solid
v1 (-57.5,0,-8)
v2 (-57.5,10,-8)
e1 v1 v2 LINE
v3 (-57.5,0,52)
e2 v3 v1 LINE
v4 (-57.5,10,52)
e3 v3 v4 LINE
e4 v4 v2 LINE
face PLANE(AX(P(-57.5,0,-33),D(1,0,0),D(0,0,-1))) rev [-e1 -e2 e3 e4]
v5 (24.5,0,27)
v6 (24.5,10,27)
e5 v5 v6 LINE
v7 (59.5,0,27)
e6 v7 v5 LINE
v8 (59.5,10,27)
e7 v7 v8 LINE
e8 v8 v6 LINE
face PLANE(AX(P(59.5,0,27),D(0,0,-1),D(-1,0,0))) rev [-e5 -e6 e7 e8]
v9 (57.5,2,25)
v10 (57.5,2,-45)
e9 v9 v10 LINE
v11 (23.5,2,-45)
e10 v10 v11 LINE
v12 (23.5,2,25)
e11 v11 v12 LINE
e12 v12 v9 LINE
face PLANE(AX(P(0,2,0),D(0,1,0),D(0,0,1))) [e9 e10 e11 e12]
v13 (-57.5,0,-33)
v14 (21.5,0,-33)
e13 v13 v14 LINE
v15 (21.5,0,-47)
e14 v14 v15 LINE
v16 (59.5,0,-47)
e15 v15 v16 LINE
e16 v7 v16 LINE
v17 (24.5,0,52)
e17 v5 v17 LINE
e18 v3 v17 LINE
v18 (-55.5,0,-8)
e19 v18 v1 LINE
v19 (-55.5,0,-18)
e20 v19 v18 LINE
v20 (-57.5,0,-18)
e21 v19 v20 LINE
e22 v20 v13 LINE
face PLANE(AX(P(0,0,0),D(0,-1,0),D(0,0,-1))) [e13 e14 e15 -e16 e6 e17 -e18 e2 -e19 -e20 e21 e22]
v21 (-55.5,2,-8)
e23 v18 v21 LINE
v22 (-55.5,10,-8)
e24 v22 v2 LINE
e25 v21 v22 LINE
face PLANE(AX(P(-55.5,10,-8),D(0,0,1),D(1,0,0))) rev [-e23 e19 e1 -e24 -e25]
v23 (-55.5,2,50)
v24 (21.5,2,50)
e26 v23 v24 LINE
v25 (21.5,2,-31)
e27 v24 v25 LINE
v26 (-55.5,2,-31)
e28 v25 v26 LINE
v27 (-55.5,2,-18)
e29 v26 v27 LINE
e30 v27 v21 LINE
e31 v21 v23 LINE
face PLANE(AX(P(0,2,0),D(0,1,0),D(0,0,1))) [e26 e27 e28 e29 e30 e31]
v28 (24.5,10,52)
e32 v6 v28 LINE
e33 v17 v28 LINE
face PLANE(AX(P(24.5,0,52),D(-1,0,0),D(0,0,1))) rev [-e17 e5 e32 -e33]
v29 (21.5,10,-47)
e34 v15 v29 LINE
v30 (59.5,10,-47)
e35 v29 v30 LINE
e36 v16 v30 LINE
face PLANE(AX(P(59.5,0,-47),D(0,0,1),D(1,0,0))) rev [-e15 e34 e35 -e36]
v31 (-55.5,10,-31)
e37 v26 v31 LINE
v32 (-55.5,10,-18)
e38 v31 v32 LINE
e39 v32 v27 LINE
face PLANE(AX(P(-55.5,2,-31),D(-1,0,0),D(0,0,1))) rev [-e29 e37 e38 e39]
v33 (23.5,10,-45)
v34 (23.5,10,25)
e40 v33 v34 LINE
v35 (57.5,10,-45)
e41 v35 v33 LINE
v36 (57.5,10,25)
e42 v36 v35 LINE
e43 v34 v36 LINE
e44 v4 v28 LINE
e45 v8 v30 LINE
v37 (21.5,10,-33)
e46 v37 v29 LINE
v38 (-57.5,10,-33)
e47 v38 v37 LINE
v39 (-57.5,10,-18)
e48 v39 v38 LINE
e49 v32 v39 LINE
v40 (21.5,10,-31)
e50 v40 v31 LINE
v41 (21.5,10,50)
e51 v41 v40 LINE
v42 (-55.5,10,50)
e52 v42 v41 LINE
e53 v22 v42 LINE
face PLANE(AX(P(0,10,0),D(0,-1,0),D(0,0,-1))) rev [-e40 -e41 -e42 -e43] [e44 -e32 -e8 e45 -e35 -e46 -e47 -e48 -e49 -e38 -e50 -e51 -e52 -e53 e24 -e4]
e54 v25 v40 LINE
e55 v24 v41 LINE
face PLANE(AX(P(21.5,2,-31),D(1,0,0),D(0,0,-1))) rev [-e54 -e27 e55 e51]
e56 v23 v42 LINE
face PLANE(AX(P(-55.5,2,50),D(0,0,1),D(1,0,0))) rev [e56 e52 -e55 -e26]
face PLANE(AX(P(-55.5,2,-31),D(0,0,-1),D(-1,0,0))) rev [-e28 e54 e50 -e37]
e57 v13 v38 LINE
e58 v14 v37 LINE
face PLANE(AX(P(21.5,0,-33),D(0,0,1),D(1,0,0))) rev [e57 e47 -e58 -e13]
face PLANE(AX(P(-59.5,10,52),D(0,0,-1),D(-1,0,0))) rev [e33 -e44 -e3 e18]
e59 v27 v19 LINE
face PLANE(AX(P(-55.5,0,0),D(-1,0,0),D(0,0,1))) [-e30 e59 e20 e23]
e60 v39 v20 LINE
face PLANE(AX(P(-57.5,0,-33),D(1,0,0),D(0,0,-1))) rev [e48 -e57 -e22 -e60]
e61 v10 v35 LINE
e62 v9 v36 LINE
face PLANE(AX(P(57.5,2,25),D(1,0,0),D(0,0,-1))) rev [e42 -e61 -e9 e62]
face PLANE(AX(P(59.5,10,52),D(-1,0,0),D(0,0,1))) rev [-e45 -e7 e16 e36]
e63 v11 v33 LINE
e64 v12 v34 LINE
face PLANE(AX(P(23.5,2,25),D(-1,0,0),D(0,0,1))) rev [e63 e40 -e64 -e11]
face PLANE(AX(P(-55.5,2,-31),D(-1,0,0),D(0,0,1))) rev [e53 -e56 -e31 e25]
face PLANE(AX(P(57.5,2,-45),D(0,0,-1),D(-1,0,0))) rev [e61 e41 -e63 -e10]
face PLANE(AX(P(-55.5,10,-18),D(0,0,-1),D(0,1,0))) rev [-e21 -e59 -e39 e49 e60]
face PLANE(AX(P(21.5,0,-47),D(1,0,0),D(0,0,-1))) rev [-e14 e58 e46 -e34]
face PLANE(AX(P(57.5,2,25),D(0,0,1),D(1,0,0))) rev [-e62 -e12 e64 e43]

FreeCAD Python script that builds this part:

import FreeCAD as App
import Part
import Sketcher


def add_polygon(sketch, points):
    """Adds a closed chain of lines whose ends are joined by coincident constraints."""
    first, n = sketch.GeometryCount, len(points)
    for a, b in zip(points, points[1:] + points[:1]):
        sketch.addGeometry(Part.LineSegment(App.Vector(*a, 0), App.Vector(*b, 0)), False)
    for i in range(n):
        sketch.addConstraint(Sketcher.Constraint("Coincident", first + i, 2, first + (i + 1) % n, 1))

doc = App.newDocument("Part")
body = doc.addObject("PartDesign::Body", "Body")

# Sketch on XZ plane
sketch1 = body.newObject("Sketcher::SketchObject", "Sketch")
sketch1.AttachmentSupport = (doc.getObject("XZ_Plane"), [""])
sketch1.MapMode = "FlatFace"
add_polygon(sketch1, [(-59.5, -52), (-59.5, 52), (59.5, 52), (59.5, -52)])  # lines 0-3
sketch1.addConstraint([
    Sketcher.Constraint("Vertical", 0),
    Sketcher.Constraint("Horizontal", 1),
    Sketcher.Constraint("Vertical", 2),
    Sketcher.Constraint("Horizontal", 3),
    Sketcher.Constraint("Symmetric", 0, 2, 2, 2, -1, 1),
    Sketcher.Constraint("DistanceX", 1, 1, 1, 2, 119.0),
    Sketcher.Constraint("DistanceY", 0, 1, 0, 2, 104.0),
])
pad1 = body.newObject("PartDesign::Pad", "Pad")
pad1.Profile = sketch1
pad1.Length = 10
pad1.Reversed = True

# Sketch on XZ plane
sketch2 = body.newObject("Sketcher::SketchObject", "Sketch001")
sketch2.AttachmentSupport = (doc.getObject("XZ_Plane"), [""])
sketch2.MapMode = "FlatFace"
sketch2.AttachmentOffset = App.Placement(App.Vector(0, 0, -10), App.Rotation())
add_polygon(sketch2, [(24.5, 27), (24.5, 52), (59.5, 52), (59.5, 27)])  # lines 0-3
sketch2.addConstraint([
    Sketcher.Constraint("Vertical", 0),
    Sketcher.Constraint("Horizontal", 1),
    Sketcher.Constraint("Vertical", 2),
    Sketcher.Constraint("Horizontal", 3),
    Sketcher.Constraint("DistanceX", 1, 1, 1, 2, 35.0),
    Sketcher.Constraint("DistanceY", 0, 1, 0, 2, 25.0),
    Sketcher.Constraint("DistanceY", -1, 1, 0, 2, 52.0),
    Sketcher.Constraint("DistanceX", -1, 1, 0, 2, 24.5),
])
pocket1 = body.newObject("PartDesign::Pocket", "Pocket")
pocket1.Profile = sketch2
pocket1.Type = "ThroughAll"
pocket1.Reversed = True

# Sketch on XZ plane
sketch3 = body.newObject("Sketcher::SketchObject", "Sketch002")
sketch3.AttachmentSupport = (doc.getObject("XZ_Plane"), [""])
sketch3.MapMode = "FlatFace"
sketch3.AttachmentOffset = App.Placement(App.Vector(0, 0, -10), App.Rotation())
add_polygon(sketch3, [(23.5, -45), (23.5, 25), (57.5, 25), (57.5, -45)])  # lines 0-3
sketch3.addConstraint([
    Sketcher.Constraint("Vertical", 0),
    Sketcher.Constraint("Horizontal", 1),
    Sketcher.Constraint("Vertical", 2),
    Sketcher.Constraint("Horizontal", 3),
    Sketcher.Constraint("DistanceX", 1, 1, 1, 2, 34.0),
    Sketcher.Constraint("DistanceY", 0, 1, 0, 2, 70.0),
    Sketcher.Constraint("DistanceY", -1, 1, 0, 2, 25.0),
    Sketcher.Constraint("DistanceX", -1, 1, 0, 2, 23.5),
])
pocket2 = body.newObject("PartDesign::Pocket", "Pocket001")
pocket2.Profile = sketch3
pocket2.Length = 8
pocket2.Reversed = True

# Sketch on XZ plane
sketch4 = body.newObject("Sketcher::SketchObject", "Sketch003")
sketch4.AttachmentSupport = (doc.getObject("XZ_Plane"), [""])
sketch4.MapMode = "FlatFace"
sketch4.AttachmentOffset = App.Placement(App.Vector(0, 0, -10), App.Rotation())
add_polygon(sketch4, [(-55.5, -31), (-55.5, 50), (21.5, 50), (21.5, -31)])  # lines 0-3
sketch4.addConstraint([
    Sketcher.Constraint("Vertical", 0),
    Sketcher.Constraint("Horizontal", 1),
    Sketcher.Constraint("Vertical", 2),
    Sketcher.Constraint("Horizontal", 3),
    Sketcher.Constraint("DistanceX", 1, 1, 1, 2, 77.0),
    Sketcher.Constraint("DistanceY", 0, 1, 0, 2, 81.0),
    Sketcher.Constraint("DistanceY", -1, 1, 0, 2, 50.0),
    Sketcher.Constraint("DistanceX", 0, 2, -1, 1, 55.5),
])
pocket3 = body.newObject("PartDesign::Pocket", "Pocket002")
pocket3.Profile = sketch4
pocket3.Length = 8
pocket3.Reversed = True

# Sketch on XZ plane
sketch5 = body.newObject("Sketcher::SketchObject", "Sketch004")
sketch5.AttachmentSupport = (doc.getObject("XZ_Plane"), [""])
sketch5.MapMode = "FlatFace"
sketch5.AttachmentOffset = App.Placement(App.Vector(0, 0, -10), App.Rotation())
add_polygon(sketch5, [(59.5, -52), (-59.5, -52), (-59.5, 52), (-57.5, 52), (-57.5, -33), (21.5, -33), (21.5, -47), (59.5, -47)])  # lines 0-7
sketch5.addConstraint([
    Sketcher.Constraint("Horizontal", 0),
    Sketcher.Constraint("Vertical", 1),
    Sketcher.Constraint("Horizontal", 2),
    Sketcher.Constraint("Vertical", 3),
    Sketcher.Constraint("Horizontal", 4),
    Sketcher.Constraint("Vertical", 5),
    Sketcher.Constraint("Horizontal", 6),
    Sketcher.Constraint("Vertical", 7),
    Sketcher.Constraint("Symmetric", 1, 2, 7, 2, -1, 1),
    Sketcher.Constraint("DistanceX", 0, 2, 0, 1, 119.0),
    Sketcher.Constraint("DistanceX", 2, 1, 2, 2, 2.0),
    Sketcher.Constraint("DistanceX", 4, 1, 4, 2, 79.0),
    Sketcher.Constraint("DistanceY", 1, 1, 1, 2, 104.0),
    Sketcher.Constraint("DistanceY", 3, 2, 3, 1, 85.0),
    Sketcher.Constraint("DistanceY", 5, 2, 5, 1, 14.0),
])
pocket4 = body.newObject("PartDesign::Pocket", "Pocket003")
pocket4.Profile = sketch5
pocket4.Length = 10
pocket4.Reversed = True

# Sketch on YZ plane
sketch6 = body.newObject("Sketcher::SketchObject", "Sketch005")
sketch6.AttachmentSupport = (doc.getObject("YZ_Plane"), [""])
sketch6.MapMode = "FlatFace"
sketch6.AttachmentOffset = App.Placement(App.Vector(0, 0, -57.5), App.Rotation())
add_polygon(sketch6, [(10, -18), (0, -18), (0, -8), (10, -8)])  # lines 0-3
sketch6.addConstraint([
    Sketcher.Constraint("Horizontal", 0),
    Sketcher.Constraint("Vertical", 1),
    Sketcher.Constraint("Horizontal", 2),
    Sketcher.Constraint("Vertical", 3),
    Sketcher.Constraint("PointOnObject", 0, 2, -2),
    Sketcher.Constraint("Equal", 2, 1),
    Sketcher.Constraint("DistanceX", 0, 2, 0, 1, 10.0),
    Sketcher.Constraint("DistanceY", 0, 2, -1, 1, 18.0),
])
pocket5 = body.newObject("PartDesign::Pocket", "Pocket004")
pocket5.Profile = sketch6
pocket5.Length = 2
pocket5.Reversed = True

doc.recompute()
